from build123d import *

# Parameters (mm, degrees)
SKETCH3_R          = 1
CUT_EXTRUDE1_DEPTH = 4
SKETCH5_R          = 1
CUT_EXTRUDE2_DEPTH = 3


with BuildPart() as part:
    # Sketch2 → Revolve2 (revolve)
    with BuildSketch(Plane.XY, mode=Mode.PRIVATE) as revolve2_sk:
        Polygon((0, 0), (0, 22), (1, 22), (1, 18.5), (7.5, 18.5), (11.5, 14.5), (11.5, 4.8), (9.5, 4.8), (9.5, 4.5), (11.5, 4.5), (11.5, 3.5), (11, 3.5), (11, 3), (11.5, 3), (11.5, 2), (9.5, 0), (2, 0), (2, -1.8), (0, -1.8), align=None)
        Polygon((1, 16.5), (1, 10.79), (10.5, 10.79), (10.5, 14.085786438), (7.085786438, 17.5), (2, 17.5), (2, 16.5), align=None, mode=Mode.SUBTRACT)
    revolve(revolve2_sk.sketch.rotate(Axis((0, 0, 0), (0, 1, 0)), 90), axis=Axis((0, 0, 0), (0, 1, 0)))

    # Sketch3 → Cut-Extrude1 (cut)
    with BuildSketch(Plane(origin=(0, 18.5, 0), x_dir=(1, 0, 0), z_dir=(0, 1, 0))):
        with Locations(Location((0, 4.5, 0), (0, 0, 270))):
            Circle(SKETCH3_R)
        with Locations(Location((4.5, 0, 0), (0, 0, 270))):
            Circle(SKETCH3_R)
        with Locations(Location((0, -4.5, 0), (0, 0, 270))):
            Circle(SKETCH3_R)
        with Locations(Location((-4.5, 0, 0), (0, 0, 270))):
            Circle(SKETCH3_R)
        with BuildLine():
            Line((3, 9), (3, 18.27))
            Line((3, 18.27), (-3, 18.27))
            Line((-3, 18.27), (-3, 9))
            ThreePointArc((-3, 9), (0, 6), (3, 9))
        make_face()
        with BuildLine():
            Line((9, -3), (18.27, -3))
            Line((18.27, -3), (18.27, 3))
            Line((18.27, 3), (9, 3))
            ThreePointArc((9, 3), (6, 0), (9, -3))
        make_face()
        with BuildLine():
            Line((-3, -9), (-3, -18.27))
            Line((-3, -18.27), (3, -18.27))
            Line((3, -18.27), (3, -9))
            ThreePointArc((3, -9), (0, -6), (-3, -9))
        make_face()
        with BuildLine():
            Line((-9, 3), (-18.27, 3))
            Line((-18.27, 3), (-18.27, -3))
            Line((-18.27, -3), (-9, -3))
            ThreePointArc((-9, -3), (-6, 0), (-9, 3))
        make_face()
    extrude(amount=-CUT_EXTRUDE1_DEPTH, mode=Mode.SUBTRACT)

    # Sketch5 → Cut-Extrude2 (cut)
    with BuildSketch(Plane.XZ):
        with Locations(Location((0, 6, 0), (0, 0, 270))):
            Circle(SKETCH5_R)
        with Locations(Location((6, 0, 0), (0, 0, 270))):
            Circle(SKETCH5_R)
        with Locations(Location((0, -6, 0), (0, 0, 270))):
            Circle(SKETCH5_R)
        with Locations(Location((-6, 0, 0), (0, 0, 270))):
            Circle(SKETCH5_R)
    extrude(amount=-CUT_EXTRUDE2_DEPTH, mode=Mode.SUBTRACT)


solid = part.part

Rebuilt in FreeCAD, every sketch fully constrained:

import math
import FreeCAD as App
import Part
import Sketcher
from FreeCAD import Vector
Q = App.Units.Quantity

doc = App.newDocument("Part")
body = doc.addObject("PartDesign::Body", "Body")

sketch1 = body.newObject("Sketcher::SketchObject", "Sketch")
sketch1.AttachmentSupport = (doc.getObject("XY_Plane"), [""])
sketch1.MapMode = "FlatFace"
sketch1.addGeometry([
    Part.LineSegment(Vector(0, 22, 0), Vector(0, -1.8, 0)),
    Part.LineSegment(Vector(0, -1.8, 0), Vector(2, -1.8, 0)),
    Part.LineSegment(Vector(2, -1.8, 0), Vector(2, 0, 0)),
    Part.LineSegment(Vector(2, 0, 0), Vector(9.5, 0, 0)),
    Part.LineSegment(Vector(9.5, 0, 0), Vector(11.5, 2, 0)),
    Part.LineSegment(Vector(11.5, 2, 0), Vector(11.5, 3, 0)),
    Part.LineSegment(Vector(11.5, 3, 0), Vector(11, 3, 0)),
    Part.LineSegment(Vector(11, 3, 0), Vector(11, 3.5, 0)),
    Part.LineSegment(Vector(11, 3.5, 0), Vector(11.5, 3.5, 0)),
    Part.LineSegment(Vector(11.5, 3.5, 0), Vector(11.5, 4.5, 0)),
    Part.LineSegment(Vector(11.5, 4.5, 0), Vector(9.5, 4.5, 0)),
    Part.LineSegment(Vector(9.5, 4.5, 0), Vector(9.5, 4.8, 0)),
    Part.LineSegment(Vector(9.5, 4.8, 0), Vector(11.5, 4.8, 0)),
    Part.LineSegment(Vector(11.5, 4.8, 0), Vector(11.5, 14.5, 0)),
    Part.LineSegment(Vector(11.5, 14.5, 0), Vector(7.5, 18.5, 0)),
    Part.LineSegment(Vector(7.5, 18.5, 0), Vector(1, 18.5, 0)),
    Part.LineSegment(Vector(1, 18.5, 0), Vector(1, 22, 0)),
    Part.LineSegment(Vector(1, 22, 0), Vector(0, 22, 0)),
    Part.LineSegment(Vector(1, 16.5, 0), Vector(2, 16.5, 0)),
    Part.LineSegment(Vector(2, 16.5, 0), Vector(2, 17.5, 0)),
    Part.LineSegment(Vector(2, 17.5, 0), Vector(7.09, 17.5, 0)),
    Part.LineSegment(Vector(7.09, 17.5, 0), Vector(10.5, 14.09, 0)),
    Part.LineSegment(Vector(10.5, 14.09, 0), Vector(10.5, 10.79, 0)),
    Part.LineSegment(Vector(10.5, 10.79, 0), Vector(1, 10.79, 0)),
    Part.LineSegment(Vector(1, 10.79, 0), Vector(1, 16.5, 0)),
], False)
sketch1.addConstraint([
    Sketcher.Constraint("Coincident", 0, 2, 1, 1),
    Sketcher.Constraint("Coincident", 1, 2, 2, 1),
    Sketcher.Constraint("Coincident", 2, 2, 3, 1),
    Sketcher.Constraint("Coincident", 3, 2, 4, 1),
    Sketcher.Constraint("Coincident", 4, 2, 5, 1),
    Sketcher.Constraint("Coincident", 5, 2, 6, 1),
    Sketcher.Constraint("Coincident", 6, 2, 7, 1),
    Sketcher.Constraint("Coincident", 7, 2, 8, 1),
    Sketcher.Constraint("Coincident", 8, 2, 9, 1),
    Sketcher.Constraint("Coincident", 9, 2, 10, 1),
    Sketcher.Constraint("Coincident", 10, 2, 11, 1),
    Sketcher.Constraint("Coincident", 11, 2, 12, 1),
    Sketcher.Constraint("Coincident", 12, 2, 13, 1),
    Sketcher.Constraint("Coincident", 13, 2, 14, 1),
    Sketcher.Constraint("Coincident", 14, 2, 15, 1),
    Sketcher.Constraint("Coincident", 15, 2, 16, 1),
    Sketcher.Constraint("Coincident", 16, 2, 17, 1),
    Sketcher.Constraint("Coincident", 17, 2, 0, 1),
    Sketcher.Constraint("Coincident", 18, 2, 19, 1),
    Sketcher.Constraint("Coincident", 19, 2, 20, 1),
    Sketcher.Constraint("Coincident", 20, 2, 21, 1),
    Sketcher.Constraint("Coincident", 21, 2, 22, 1),
    Sketcher.Constraint("Coincident", 22, 2, 23, 1),
    Sketcher.Constraint("Coincident", 23, 2, 24, 1),
    Sketcher.Constraint("Coincident", 24, 2, 18, 1),
    Sketcher.Constraint("Vertical", 0),
    Sketcher.Constraint("Horizontal", 1),
    Sketcher.Constraint("Vertical", 2),
    Sketcher.Constraint("Horizontal", 3),
    Sketcher.Constraint("Vertical", 5),
    Sketcher.Constraint("Horizontal", 6),
    Sketcher.Constraint("Vertical", 7),
    Sketcher.Constraint("Horizontal", 8),
    Sketcher.Constraint("Vertical", 9),
    Sketcher.Constraint("Horizontal", 10),
    Sketcher.Constraint("Vertical", 11),
    Sketcher.Constraint("Horizontal", 12),
    Sketcher.Constraint("Vertical", 13),
    Sketcher.Constraint("Horizontal", 15),
    Sketcher.Constraint("Vertical", 16),
    Sketcher.Constraint("Horizontal", 17),
    Sketcher.Constraint("Horizontal", 18),
    Sketcher.Constraint("Vertical", 19),
    Sketcher.Constraint("Horizontal", 20),
    Sketcher.Constraint("Vertical", 22),
    Sketcher.Constraint("Horizontal", 23),
    Sketcher.Constraint("Vertical", 24),
    Sketcher.Constraint("PointOnObject", 0, 2, -2),
    Sketcher.Constraint("PointOnObject", 2, 2, -1),
    Sketcher.Constraint("Perpendicular", 4, 14),
    Sketcher.Constraint("Parallel", 14, 21),
    Sketcher.Constraint("Vertical", 5, 2, 8, 2),
    Sketcher.Constraint("Vertical", 3, 2, 10, 2),
    Sketcher.Constraint("Vertical", 9, 2, 12, 2),
    Sketcher.Constraint("Vertical", 2, 2, 18, 2),
    Sketcher.Constraint("Vertical", 16, 2, 23, 2),
    Sketcher.Constraint("Equal", 1, 10),
    Sketcher.Constraint("Equal", 17, 18),
    Sketcher.Constraint("Equal", 18, 5),
    Sketcher.Constraint("Equal", 8, 7),
    Sketcher.Constraint("Equal", 5, 9),
    Sketcher.Constraint("Equal", 9, 19),
    Sketcher.Constraint("DistanceX", 1, 1, 1, 2, Q("2 mm")),
    Sketcher.Constraint("Angle", 4, Q("45 deg")),
    Sketcher.Constraint("DistanceX", 3, 1, 3, 2, Q("7.5 mm")),
    Sketcher.Constraint("DistanceX", 6, 2, 6, 1, Q("0.5 mm")),
    Sketcher.Constraint("DistanceX", 15, 2, 15, 1, Q("6.5 mm")),
    Sketcher.Constraint("DistanceX", 23, 2, 23, 1, Q("9.5 mm")),
    Sketcher.Constraint("DistanceY", 0, 2, 0, 1, Q("23.8 mm")),
    Sketcher.Constraint("DistanceY", 2, 1, 2, 2, Q("1.8 mm")),
    Sketcher.Constraint("DistanceY", 11, 1, 11, 2, Q("0.3 mm")),
    Sketcher.Constraint("DistanceY", 13, 1, 13, 2, Q("9.7 mm")),
    Sketcher.Constraint("DistanceY", 18, 2, 15, 2, Q("2 mm")),
    Sketcher.Constraint("DistanceY", 24, 1, 24, 2, Q("5.71 mm")),
    Sketcher.Constraint("DistanceX", 20, 1, 20, 2, Q("5.085786 mm")),
])
revolution = body.newObject("PartDesign::Revolution", "Revolution")
revolution.Profile = sketch1
revolution.ReferenceAxis = (sketch1, ["V_Axis"])
revolution.Angle = 360

sketch2 = body.newObject("Sketcher::SketchObject", "Sketch001")
sketch2.AttachmentSupport = (doc.getObject("XZ_Plane"), [""])
sketch2.MapMode = "FlatFace"
sketch2.AttachmentOffset = App.Placement(Vector(0, 0, -18.5), App.Rotation())
sketch2.addGeometry([
    Part.Circle(Vector(0, -4.5, 0), Vector(0, 0, 1), 1),
    Part.Circle(Vector(4.5, 0, 0), Vector(0, 0, 1), 1),
    Part.Circle(Vector(0, 4.5, 0), Vector(0, 0, 1), 1),
    Part.Circle(Vector(-4.5, 0, 0), Vector(0, 0, 1), 1),
    Part.LineSegment(Vector(3, -9, 0), Vector(3, -18.3, 0)),
    Part.LineSegment(Vector(3, -18.3, 0), Vector(-3, -18.3, 0)),
    Part.LineSegment(Vector(-3, -18.3, 0), Vector(-3, -9, 0)),
    Part.ArcOfCircle(Part.Circle(Vector(0, -9, 0), Vector(0, 0, 1), 3), math.radians(0), math.radians(180)),
    Part.LineSegment(Vector(9, 3, 0), Vector(18.3, 3, 0)),
    Part.LineSegment(Vector(18.3, 3, 0), Vector(18.3, -3, 0)),
    Part.LineSegment(Vector(18.3, -3, 0), Vector(9, -3, 0)),
    Part.ArcOfCircle(Part.Circle(Vector(9, 0, 0), Vector(0, 0, 1), 3), math.radians(90), math.radians(270)),
    Part.LineSegment(Vector(-3, 9, 0), Vector(-3, 18.3, 0)),
    Part.LineSegment(Vector(-3, 18.3, 0), Vector(3, 18.3, 0)),
    Part.LineSegment(Vector(3, 18.3, 0), Vector(3, 9, 0)),
    Part.ArcOfCircle(Part.Circle(Vector(0, 9, 0), Vector(0, 0, 1), 3), math.radians(180), math.radians(360)),
    Part.LineSegment(Vector(-9, -3, 0), Vector(-18.3, -3, 0)),
    Part.LineSegment(Vector(-18.3, -3, 0), Vector(-18.3, 3, 0)),
    Part.LineSegment(Vector(-18.3, 3, 0), Vector(-9, 3, 0)),
    Part.ArcOfCircle(Part.Circle(Vector(-9, 0, 0), Vector(0, 0, 1), 3), math.radians(-90), math.radians(90)),
], False)
sketch2.addConstraint([
    Sketcher.Constraint("Coincident", 4, 2, 5, 1),
    Sketcher.Constraint("Coincident", 5, 2, 6, 1),
    Sketcher.Constraint("Tangent", 6, 2, 7, 2),
    Sketcher.Constraint("Tangent", 7, 1, 4, 1),
    Sketcher.Constraint("Coincident", 8, 2, 9, 1),
    Sketcher.Constraint("Coincident", 9, 2, 10, 1),
    Sketcher.Constraint("Tangent", 10, 2, 11, 2),
    Sketcher.Constraint("Tangent", 11, 1, 8, 1),
    Sketcher.Constraint("Coincident", 12, 2, 13, 1),
    Sketcher.Constraint("Coincident", 13, 2, 14, 1),
    Sketcher.Constraint("Tangent", 14, 2, 15, 2),
    Sketcher.Constraint("Tangent", 15, 1, 12, 1),
    Sketcher.Constraint("Coincident", 16, 2, 17, 1),
    Sketcher.Constraint("Coincident", 17, 2, 18, 1),
    Sketcher.Constraint("Tangent", 18, 2, 19, 2),
    Sketcher.Constraint("Tangent", 19, 1, 16, 1),
    Sketcher.Constraint("Vertical", 4),
    Sketcher.Constraint("Horizontal", 5),
    Sketcher.Constraint("Vertical", 6),
    Sketcher.Constraint("Horizontal", 8),
    Sketcher.Constraint("Vertical", 9),
    Sketcher.Constraint("Horizontal", 10),
    Sketcher.Constraint("Vertical", 12),
    Sketcher.Constraint("Horizontal", 13),
    Sketcher.Constraint("Vertical", 14),
    Sketcher.Constraint("Horizontal", 16),
    Sketcher.Constraint("Vertical", 17),
    Sketcher.Constraint("Horizontal", 18),
    Sketcher.Constraint("Equal", 0, 1),
    Sketcher.Constraint("Equal", 1, 2),
    Sketcher.Constraint("Equal", 2, 3),
    Sketcher.Constraint("Equal", 7, 11),
    Sketcher.Constraint("Equal", 11, 15),
    Sketcher.Constraint("Equal", 15, 19),
    Sketcher.Constraint("Symmetric", 0, 3, 2, 3, -1, 1),
    Sketcher.Constraint("Symmetric", 1, 3, 3, 3, -1, 1),
    Sketcher.Constraint("Symmetric", 7, 3, 15, 3, -1, 1),
    Sketcher.Constraint("Symmetric", 11, 3, 19, 3, -1, 1),
    Sketcher.Constraint("Symmetric", 9, 2, 16, 2, -2),
    Sketcher.Constraint("Symmetric", 5, 2, 12, 2, -1),
    Sketcher.Constraint("PointOnObject", 0, 3, -2),
    Sketcher.Constraint("PointOnObject", 1, 3, -1),
    Sketcher.Constraint("Equal", 18, 4),
    Sketcher.Constraint("Diameter", 0, Q("2 mm")),
    Sketcher.Constraint("Radius", 7, Q("3 mm")),
    Sketcher.Constraint("DistanceY", 7, 3, -1, 1, Q("9 mm")),
    Sketcher.Constraint("DistanceX", -1, 1, 11, 3, Q("9 mm")),
    Sketcher.Constraint("DistanceY", 0, 3, 2, 3, Q("9 mm")),
    Sketcher.Constraint("DistanceX", 3, 3, 1, 3, Q("9 mm")),
    Sketcher.Constraint("DistanceX", 8, 1, 8, 2, Q("9.27 mm")),
])
pocket1 = body.newObject("PartDesign::Pocket", "Pocket")
pocket1.Profile = sketch2
pocket1.Length = 4
pocket1.Reversed = True

sketch3 = body.newObject("Sketcher::SketchObject", "Sketch002")
sketch3.AttachmentSupport = (doc.getObject("XZ_Plane"), [""])
sketch3.MapMode = "FlatFace"
sketch3.addGeometry([
    Part.Circle(Vector(0, 6, 0), Vector(0, 0, 1), 1),
    Part.Circle(Vector(6, 0, 0), Vector(0, 0, 1), 1),
    Part.Circle(Vector(0, -6, 0), Vector(0, 0, 1), 1),
    Part.Circle(Vector(-6, 0, 0), Vector(0, 0, 1), 1),
], False)
sketch3.addConstraint([
    Sketcher.Constraint("Equal", 0, 1),
    Sketcher.Constraint("Equal", 1, 2),
    Sketcher.Constraint("Equal", 2, 3),
    Sketcher.Constraint("Symmetric", 0, 3, 2, 3, -1, 1),
    Sketcher.Constraint("Symmetric", 1, 3, 3, 3, -1, 1),
    Sketcher.Constraint("PointOnObject", 0, 3, -2),
    Sketcher.Constraint("PointOnObject", 1, 3, -1),
    Sketcher.Constraint("Diameter", 0, Q("2 mm")),
    Sketcher.Constraint("DistanceY", -1, 1, 0, 3, Q("6 mm")),
    Sketcher.Constraint("DistanceX", -1, 1, 1, 3, Q("6 mm")),
])
pocket2 = body.newObject("PartDesign::Pocket", "Pocket001")
pocket2.Profile = sketch3
pocket2.Length = 3

doc.recompute()
